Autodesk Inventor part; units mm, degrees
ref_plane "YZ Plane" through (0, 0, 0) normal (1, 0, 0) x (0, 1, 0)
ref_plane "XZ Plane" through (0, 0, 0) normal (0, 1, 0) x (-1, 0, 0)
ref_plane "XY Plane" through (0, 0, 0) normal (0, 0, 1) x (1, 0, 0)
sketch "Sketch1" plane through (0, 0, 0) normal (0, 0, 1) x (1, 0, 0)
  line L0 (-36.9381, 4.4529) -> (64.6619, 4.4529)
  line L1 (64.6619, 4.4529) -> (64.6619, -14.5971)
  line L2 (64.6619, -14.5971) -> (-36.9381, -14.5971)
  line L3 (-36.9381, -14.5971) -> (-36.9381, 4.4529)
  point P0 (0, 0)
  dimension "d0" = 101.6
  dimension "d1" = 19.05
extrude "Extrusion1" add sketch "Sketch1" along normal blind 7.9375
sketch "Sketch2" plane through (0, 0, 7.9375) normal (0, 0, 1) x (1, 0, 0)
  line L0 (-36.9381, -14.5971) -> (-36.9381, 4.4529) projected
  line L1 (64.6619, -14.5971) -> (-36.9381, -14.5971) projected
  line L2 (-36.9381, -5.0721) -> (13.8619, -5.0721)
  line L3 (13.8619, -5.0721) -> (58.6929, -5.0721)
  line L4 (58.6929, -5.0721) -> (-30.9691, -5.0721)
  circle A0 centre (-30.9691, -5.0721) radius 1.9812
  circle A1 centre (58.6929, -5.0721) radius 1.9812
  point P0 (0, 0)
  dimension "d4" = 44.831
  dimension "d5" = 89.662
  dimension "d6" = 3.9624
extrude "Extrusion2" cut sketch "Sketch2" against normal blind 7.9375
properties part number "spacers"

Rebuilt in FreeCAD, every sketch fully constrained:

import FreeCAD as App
import Part
import Sketcher
from FreeCAD import Vector
Q = App.Units.Quantity

doc = App.newDocument("Part")
body = doc.addObject("PartDesign::Body", "Body")

# Sketch on XY plane
sketch1 = body.newObject("Sketcher::SketchObject", "Sketch")
sketch1.AttachmentSupport = (doc.getObject("XY_Plane"), [""])
sketch1.MapMode = "FlatFace"
sketch1.addGeometry(Part.LineSegment(Vector(65, 4, 0), Vector(-37, 4, 0)), False)
sketch1.addGeometry(Part.LineSegment(Vector(-37, 4, 0), Vector(-37, -15, 0)), False)
sketch1.addGeometry(Part.LineSegment(Vector(-37, -15, 0), Vector(65, -15, 0)), False)
sketch1.addGeometry(Part.LineSegment(Vector(65, -15, 0), Vector(65, 4, 0)), False)
sketch1.addConstraint(Sketcher.Constraint("Coincident", 0, 2, 1, 1))
sketch1.addConstraint(Sketcher.Constraint("Coincident", 1, 2, 2, 1))
sketch1.addConstraint(Sketcher.Constraint("Coincident", 2, 2, 3, 1))
sketch1.addConstraint(Sketcher.Constraint("Coincident", 3, 2, 0, 1))
sketch1.addConstraint(Sketcher.Constraint("Horizontal", 0))
sketch1.addConstraint(Sketcher.Constraint("Vertical", 1))
sketch1.addConstraint(Sketcher.Constraint("Horizontal", 2))
sketch1.addConstraint(Sketcher.Constraint("Vertical", 3))
sketch1.addConstraint(Sketcher.Constraint("DistanceX", 0, 2, 0, 1, Q("4 in")))
sketch1.addConstraint(Sketcher.Constraint("DistanceY", 1, 2, 1, 1, Q("0.75 in")))
sketch1.addConstraint(Sketcher.Constraint("DistanceY", -1, 1, 0, 2, Q("0.1753 in")))
sketch1.addConstraint(Sketcher.Constraint("DistanceX", 0, 2, -1, 1, 36.938))
pad1 = body.newObject("PartDesign::Pad", "Pad")
pad1.Profile = sketch1
pad1.Length = Q("0.3125 in")

# Sketch on XY plane
sketch2 = body.newObject("Sketcher::SketchObject", "Sketch001")
sketch2.AttachmentSupport = (doc.getObject("XY_Plane"), [""])
sketch2.MapMode = "FlatFace"
sketch2.AttachmentOffset = App.Placement(Vector(0, 0, 0.3125 * 25.4), App.Rotation())
sketch2.addGeometry(Part.Circle(Vector(-31, -5.1, 0), Vector(0, 0, 1), 2), False)
sketch2.addGeometry(Part.Circle(Vector(58.7, -5.1, 0), Vector(0, 0, 1), 2), False)
sketch2.addConstraint(Sketcher.Constraint("Equal", 0, 1))
sketch2.addConstraint(Sketcher.Constraint("Horizontal", 0, 3, 1, 3))
sketch2.addConstraint(Sketcher.Constraint("Diameter", 0, Q("0.156 in")))
sketch2.addConstraint(Sketcher.Constraint("DistanceX", 0, 3, 1, 3, Q("3.53 in")))
sketch2.addConstraint(Sketcher.Constraint("DistanceY", 0, 3, -1, 1, Q("0.1997 in")))
sketch2.addConstraint(Sketcher.Constraint("DistanceX", 0, 3, -1, 1, 30.969))
pocket1 = body.newObject("PartDesign::Pocket", "Pocket")
pocket1.Profile = sketch2
pocket1.Length = Q("0.3125 in")

doc.recompute()
